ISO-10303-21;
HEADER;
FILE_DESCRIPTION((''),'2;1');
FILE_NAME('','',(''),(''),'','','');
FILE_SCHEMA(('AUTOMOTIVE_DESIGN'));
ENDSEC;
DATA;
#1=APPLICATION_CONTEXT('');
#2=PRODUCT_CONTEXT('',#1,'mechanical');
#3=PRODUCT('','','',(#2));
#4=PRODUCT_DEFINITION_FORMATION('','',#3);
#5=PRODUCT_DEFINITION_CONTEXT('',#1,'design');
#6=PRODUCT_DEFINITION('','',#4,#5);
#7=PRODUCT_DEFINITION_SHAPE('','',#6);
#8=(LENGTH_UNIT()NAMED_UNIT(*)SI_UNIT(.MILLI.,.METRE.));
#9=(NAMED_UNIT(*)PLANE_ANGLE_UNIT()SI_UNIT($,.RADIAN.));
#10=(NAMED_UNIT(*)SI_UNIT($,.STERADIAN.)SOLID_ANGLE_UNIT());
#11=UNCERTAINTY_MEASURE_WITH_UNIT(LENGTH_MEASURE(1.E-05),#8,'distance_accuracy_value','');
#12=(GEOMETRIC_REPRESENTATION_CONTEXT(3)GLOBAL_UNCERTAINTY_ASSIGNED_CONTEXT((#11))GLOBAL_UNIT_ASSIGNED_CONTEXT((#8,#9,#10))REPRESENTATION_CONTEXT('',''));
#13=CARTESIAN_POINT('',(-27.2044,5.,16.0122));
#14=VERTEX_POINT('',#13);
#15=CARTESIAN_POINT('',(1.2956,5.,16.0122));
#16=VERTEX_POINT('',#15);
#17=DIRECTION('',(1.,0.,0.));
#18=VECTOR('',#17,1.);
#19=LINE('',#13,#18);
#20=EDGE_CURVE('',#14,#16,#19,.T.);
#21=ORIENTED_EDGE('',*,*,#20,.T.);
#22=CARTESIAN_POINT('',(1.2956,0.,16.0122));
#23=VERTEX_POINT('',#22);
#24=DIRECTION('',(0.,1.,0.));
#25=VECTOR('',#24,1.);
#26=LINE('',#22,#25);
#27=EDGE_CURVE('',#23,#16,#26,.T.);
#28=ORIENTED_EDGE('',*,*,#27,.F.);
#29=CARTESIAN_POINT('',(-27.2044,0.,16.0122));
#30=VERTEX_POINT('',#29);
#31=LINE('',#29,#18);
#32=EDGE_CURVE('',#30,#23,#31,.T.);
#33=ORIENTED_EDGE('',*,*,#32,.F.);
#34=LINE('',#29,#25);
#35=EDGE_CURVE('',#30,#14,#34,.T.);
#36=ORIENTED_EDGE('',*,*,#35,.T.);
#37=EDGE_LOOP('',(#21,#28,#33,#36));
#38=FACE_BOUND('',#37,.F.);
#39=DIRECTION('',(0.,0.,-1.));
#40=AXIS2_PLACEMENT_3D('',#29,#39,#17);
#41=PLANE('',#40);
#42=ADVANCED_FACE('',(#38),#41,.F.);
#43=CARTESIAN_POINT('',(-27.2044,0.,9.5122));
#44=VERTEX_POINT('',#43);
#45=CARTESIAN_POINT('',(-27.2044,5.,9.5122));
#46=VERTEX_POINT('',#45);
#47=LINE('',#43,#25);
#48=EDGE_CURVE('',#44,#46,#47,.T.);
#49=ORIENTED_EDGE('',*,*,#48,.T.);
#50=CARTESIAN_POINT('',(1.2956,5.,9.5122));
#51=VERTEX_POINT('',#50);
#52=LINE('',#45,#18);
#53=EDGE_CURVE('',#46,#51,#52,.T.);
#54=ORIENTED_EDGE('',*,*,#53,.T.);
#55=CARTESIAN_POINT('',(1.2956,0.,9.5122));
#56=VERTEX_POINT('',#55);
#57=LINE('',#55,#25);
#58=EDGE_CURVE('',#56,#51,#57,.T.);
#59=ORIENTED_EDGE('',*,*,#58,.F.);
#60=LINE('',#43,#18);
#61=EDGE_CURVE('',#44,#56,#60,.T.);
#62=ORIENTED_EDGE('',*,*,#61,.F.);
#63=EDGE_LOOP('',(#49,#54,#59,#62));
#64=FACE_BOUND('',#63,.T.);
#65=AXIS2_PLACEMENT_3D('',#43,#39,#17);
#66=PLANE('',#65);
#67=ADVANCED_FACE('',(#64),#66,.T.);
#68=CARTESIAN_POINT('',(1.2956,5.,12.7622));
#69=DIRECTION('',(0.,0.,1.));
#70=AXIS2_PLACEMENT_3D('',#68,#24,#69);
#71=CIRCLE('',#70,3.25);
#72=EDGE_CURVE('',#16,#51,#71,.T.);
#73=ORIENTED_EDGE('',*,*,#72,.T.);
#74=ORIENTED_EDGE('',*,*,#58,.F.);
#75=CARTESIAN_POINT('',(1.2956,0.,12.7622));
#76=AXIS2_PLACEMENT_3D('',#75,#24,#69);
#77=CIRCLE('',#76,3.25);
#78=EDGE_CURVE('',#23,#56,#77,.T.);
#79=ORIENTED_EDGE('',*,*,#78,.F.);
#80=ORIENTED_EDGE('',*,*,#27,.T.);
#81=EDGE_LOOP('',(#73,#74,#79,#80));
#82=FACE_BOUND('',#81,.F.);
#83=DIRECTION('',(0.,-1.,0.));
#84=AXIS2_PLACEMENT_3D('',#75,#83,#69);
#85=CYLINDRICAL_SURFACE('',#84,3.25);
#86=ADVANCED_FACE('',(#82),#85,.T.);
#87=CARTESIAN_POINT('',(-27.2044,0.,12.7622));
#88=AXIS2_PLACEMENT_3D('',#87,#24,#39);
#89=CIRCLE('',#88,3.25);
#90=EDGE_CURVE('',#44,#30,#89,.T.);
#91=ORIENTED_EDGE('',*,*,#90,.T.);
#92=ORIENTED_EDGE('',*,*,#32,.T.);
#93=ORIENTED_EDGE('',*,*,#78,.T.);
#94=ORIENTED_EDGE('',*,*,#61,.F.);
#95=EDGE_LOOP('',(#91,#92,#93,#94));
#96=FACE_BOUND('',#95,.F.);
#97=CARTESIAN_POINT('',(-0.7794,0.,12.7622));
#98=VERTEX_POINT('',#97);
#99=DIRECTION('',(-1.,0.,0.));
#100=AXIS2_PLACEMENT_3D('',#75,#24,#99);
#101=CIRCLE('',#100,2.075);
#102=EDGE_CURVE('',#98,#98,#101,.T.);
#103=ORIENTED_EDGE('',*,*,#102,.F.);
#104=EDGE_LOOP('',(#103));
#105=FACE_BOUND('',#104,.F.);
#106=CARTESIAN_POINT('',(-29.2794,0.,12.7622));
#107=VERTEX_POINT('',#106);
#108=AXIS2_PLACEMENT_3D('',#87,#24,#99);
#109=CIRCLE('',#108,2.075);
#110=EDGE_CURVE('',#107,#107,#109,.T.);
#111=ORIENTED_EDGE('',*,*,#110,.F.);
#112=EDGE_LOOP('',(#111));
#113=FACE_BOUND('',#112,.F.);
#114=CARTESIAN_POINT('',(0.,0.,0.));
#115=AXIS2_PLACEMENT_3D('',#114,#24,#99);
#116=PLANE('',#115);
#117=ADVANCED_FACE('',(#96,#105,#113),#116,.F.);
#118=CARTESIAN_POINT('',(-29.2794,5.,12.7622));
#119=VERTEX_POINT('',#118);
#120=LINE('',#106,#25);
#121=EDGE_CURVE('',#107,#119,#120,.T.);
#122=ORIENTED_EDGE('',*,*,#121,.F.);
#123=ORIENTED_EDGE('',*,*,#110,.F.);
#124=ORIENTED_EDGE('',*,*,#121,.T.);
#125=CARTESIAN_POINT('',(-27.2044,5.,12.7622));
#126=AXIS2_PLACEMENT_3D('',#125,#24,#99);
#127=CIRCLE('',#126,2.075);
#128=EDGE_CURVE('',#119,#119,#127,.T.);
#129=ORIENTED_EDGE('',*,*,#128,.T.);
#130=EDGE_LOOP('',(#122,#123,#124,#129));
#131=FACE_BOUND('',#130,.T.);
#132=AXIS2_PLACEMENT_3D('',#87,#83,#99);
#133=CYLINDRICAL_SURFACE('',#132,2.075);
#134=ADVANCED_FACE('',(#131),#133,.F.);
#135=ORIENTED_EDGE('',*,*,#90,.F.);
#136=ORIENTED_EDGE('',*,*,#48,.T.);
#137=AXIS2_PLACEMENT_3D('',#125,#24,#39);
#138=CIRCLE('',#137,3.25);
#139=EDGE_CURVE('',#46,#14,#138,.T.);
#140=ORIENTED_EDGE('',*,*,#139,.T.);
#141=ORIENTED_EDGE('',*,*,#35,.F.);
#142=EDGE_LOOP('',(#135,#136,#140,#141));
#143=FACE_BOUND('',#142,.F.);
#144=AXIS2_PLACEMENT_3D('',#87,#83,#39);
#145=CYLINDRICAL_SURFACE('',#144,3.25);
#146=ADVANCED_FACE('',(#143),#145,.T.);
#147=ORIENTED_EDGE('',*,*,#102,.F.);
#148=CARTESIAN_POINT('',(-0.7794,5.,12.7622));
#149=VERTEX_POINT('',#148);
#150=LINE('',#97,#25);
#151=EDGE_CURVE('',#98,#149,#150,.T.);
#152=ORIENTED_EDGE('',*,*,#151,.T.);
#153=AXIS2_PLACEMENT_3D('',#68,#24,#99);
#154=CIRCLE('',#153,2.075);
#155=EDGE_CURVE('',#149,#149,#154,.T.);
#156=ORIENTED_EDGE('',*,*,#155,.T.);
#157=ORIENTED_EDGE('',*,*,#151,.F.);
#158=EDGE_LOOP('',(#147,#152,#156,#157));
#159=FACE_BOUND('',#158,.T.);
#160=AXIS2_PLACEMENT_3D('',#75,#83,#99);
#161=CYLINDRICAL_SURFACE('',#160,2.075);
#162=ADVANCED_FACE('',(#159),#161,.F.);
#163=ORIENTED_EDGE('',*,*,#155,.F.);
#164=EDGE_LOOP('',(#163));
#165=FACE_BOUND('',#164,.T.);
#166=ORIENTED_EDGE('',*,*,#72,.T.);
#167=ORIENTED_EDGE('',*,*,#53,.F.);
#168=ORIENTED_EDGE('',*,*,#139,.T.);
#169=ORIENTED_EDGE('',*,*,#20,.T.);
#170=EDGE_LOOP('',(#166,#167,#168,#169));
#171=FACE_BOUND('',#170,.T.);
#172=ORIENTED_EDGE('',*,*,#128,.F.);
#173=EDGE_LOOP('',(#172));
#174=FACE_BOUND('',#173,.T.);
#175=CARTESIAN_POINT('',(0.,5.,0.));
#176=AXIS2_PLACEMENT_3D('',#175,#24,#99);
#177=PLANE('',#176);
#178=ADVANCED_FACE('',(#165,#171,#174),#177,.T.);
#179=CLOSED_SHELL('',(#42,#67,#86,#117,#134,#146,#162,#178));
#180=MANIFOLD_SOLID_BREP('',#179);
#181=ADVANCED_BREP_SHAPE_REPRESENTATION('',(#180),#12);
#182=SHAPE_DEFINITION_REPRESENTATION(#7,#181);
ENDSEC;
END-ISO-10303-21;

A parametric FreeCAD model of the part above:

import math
import FreeCAD as App
import Part
import Sketcher
from FreeCAD import Vector
Q = App.Units.Quantity

doc = App.newDocument("Part")
body = doc.addObject("PartDesign::Body", "Body")

# Sketch on XZ plane
sketch1 = doc.addObject("Sketcher::SketchObject", "Sketch")
body.addObject(sketch1)
sketch1.AttachmentSupport = (doc.XZ_Plane, [""])
sketch1.MapMode = "FlatFace"
sketch1.addGeometry([
    Part.LineSegment(Vector(1.3, 9.5, 0), Vector(-27.2, 9.5, 0)),  # 0
    Part.ArcOfCircle(Part.Circle(Vector(-27.2, 12.8, 0), Vector(0, 0, 1), 3.2), math.radians(90), math.radians(270)),  # 1
    Part.LineSegment(Vector(-27.2, 16, 0), Vector(1.3, 16, 0)),  # 2
    Part.ArcOfCircle(Part.Circle(Vector(1.3, 12.8, 0), Vector(0, 0, 1), 3.2), math.radians(-90), math.radians(90)),  # 3
    Part.Circle(Vector(1.3, 12.8, 0), Vector(0, 0, 1), 2.1),  # 4
    Part.Circle(Vector(-27.2, 12.8, 0), Vector(0, 0, 1), 2.1),  # 5
], False)
sketch1.addConstraint([
    Sketcher.Constraint("Tangent", 0, 2, 1, 2),
    Sketcher.Constraint("Tangent", 1, 1, 2, 1),
    Sketcher.Constraint("Tangent", 2, 2, 3, 2),
    Sketcher.Constraint("Tangent", 3, 1, 0, 1),
    Sketcher.Constraint("Horizontal", 0),
    Sketcher.Constraint("Horizontal", 2),
    Sketcher.Constraint("Coincident", 4, 3, 3, 3),
    Sketcher.Constraint("Coincident", 5, 3, 1, 3),
    Sketcher.Constraint("Equal", 4, 5),
    Sketcher.Constraint("Diameter", 4, Q("4.15 mm")),
    Sketcher.Constraint("Radius", 1, Q("3.25 mm")),
    Sketcher.Constraint("DistanceX", 0, 2, 0, 1, Q("28.5 mm")),
    Sketcher.Constraint("DistanceX", 1, 3, -1, 1, Q("27.2044 mm")),
    Sketcher.Constraint("DistanceY", -1, 1, 1, 3, Q("12.7622 mm")),
])
pad1 = doc.addObject("PartDesign::Pad", "Pad")
body.addObject(pad1)
pad1.Profile = sketch1
pad1.Length = 5
pad1.Reversed = True

doc.recompute()
